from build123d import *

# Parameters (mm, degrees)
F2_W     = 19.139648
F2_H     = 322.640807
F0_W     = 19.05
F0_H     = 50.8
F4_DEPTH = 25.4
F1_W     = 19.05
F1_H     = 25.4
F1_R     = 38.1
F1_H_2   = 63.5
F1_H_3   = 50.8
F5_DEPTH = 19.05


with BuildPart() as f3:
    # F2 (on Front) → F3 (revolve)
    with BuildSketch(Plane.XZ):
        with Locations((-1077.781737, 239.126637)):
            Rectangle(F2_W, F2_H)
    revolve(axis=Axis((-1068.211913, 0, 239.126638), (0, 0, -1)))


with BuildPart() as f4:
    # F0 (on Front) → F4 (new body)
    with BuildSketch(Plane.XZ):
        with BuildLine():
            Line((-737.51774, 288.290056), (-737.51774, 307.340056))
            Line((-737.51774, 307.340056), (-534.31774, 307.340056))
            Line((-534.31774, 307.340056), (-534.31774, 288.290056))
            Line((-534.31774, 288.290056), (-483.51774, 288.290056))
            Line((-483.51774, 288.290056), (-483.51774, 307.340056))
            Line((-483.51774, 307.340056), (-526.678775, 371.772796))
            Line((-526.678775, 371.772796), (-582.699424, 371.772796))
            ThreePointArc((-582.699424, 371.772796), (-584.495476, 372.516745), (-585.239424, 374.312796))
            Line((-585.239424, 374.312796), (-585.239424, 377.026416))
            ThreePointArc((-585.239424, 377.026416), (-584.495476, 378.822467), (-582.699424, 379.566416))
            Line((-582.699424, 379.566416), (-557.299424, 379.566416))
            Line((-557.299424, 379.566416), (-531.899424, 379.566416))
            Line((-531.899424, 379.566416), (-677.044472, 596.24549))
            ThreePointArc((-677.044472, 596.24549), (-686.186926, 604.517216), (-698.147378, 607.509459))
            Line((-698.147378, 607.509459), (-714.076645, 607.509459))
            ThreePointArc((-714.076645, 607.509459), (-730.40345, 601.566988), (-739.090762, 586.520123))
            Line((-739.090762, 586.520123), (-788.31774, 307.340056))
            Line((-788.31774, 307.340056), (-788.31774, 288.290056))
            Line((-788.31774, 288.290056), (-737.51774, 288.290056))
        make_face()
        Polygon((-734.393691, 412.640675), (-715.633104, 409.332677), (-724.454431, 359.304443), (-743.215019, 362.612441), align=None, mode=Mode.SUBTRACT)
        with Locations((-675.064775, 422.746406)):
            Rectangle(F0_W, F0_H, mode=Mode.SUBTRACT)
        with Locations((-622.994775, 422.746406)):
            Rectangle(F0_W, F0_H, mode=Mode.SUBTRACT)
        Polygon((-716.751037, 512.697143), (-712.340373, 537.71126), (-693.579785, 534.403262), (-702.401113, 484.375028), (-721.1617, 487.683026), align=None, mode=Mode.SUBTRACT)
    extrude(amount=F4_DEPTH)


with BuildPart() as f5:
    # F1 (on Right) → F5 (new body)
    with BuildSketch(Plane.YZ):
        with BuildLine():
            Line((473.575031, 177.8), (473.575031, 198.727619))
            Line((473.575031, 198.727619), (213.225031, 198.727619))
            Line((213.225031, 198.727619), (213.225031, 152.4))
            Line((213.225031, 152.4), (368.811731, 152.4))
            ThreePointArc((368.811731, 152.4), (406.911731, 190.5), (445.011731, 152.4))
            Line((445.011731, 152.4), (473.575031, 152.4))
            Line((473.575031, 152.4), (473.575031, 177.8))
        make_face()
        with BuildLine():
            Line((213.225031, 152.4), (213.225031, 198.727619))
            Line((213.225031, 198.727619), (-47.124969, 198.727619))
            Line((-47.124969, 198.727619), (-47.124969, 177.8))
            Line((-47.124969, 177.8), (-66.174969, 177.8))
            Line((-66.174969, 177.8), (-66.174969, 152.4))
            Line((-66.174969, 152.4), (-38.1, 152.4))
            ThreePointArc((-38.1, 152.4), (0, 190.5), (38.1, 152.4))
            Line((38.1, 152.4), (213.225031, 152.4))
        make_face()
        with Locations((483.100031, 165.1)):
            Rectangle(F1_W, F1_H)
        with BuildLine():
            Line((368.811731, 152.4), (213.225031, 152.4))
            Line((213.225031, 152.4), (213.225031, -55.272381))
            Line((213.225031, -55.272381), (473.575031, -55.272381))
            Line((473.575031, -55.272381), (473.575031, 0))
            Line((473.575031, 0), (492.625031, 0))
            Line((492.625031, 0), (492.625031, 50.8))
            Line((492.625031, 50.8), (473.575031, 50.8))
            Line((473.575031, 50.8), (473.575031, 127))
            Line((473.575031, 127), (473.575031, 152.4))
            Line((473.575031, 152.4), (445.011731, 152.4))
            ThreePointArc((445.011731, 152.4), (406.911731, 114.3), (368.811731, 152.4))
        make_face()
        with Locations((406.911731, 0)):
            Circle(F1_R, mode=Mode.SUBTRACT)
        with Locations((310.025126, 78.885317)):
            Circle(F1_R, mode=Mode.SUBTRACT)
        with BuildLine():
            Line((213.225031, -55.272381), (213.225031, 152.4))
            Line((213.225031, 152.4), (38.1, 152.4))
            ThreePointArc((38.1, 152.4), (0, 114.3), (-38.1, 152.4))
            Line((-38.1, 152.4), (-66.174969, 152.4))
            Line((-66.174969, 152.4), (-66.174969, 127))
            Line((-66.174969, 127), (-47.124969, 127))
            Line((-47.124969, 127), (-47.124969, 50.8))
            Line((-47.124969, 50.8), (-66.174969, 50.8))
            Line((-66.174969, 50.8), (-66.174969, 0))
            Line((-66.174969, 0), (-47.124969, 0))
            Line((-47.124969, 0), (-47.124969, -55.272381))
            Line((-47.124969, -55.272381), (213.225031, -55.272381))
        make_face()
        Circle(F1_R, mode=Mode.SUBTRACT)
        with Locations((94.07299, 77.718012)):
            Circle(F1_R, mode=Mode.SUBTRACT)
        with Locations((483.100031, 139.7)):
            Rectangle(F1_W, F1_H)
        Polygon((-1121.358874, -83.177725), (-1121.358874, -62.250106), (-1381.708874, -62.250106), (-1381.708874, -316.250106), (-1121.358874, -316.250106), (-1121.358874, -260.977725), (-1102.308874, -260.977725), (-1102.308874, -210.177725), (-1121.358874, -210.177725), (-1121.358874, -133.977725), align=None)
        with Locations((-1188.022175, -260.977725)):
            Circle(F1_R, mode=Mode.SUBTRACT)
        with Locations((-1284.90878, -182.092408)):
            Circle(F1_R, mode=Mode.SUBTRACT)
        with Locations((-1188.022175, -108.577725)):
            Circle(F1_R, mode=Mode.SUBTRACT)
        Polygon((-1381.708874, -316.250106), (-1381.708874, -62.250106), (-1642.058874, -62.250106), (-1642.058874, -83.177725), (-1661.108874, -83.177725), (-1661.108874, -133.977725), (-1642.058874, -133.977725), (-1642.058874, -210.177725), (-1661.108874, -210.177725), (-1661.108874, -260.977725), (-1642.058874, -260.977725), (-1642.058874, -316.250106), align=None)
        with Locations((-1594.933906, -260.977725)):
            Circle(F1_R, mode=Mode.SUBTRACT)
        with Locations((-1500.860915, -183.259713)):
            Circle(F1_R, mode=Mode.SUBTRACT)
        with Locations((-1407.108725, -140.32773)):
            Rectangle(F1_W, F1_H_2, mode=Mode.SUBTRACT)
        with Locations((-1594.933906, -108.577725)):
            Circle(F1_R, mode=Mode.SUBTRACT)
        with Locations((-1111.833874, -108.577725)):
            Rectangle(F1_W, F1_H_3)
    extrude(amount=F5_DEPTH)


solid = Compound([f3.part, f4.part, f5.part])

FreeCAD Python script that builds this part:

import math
import FreeCAD as App
import Part
import Sketcher
Q = App.Units.Quantity


def add_polygon(sketch, points):
    """Adds a closed chain of lines whose ends are joined by coincident constraints."""
    first, n = sketch.GeometryCount, len(points)
    for a, b in zip(points, points[1:] + points[:1]):
        sketch.addGeometry(Part.LineSegment(App.Vector(*a, 0), App.Vector(*b, 0)), False)
    for i in range(n):
        sketch.addConstraint(Sketcher.Constraint("Coincident", first + i, 2, first + (i + 1) % n, 1))

doc = App.newDocument("Part")
body = doc.addObject("PartDesign::Body", "Body")

# Sketch on XZ plane
sketch1 = doc.addObject("Sketcher::SketchObject", "Sketch")
body.addObject(sketch1)
sketch1.AttachmentSupport = (doc.XZ_Plane, [""])
sketch1.MapMode = "FlatFace"
add_polygon(sketch1, [(-1087.351561, 400.447041), (-1087.351561, 77.806234), (-1068.211913, 77.806234), (-1068.211913, 400.447041)])  # lines 0-3
sketch1.addGeometry(Part.LineSegment(App.Vector(-1068.211913, 400.447041, 0), App.Vector(-1068.211913, 77.806234, 0)), True)  # axis
sketch1.addConstraint([
    Sketcher.Constraint("Vertical", 0),
    Sketcher.Constraint("Horizontal", 1),
    Sketcher.Constraint("Vertical", 2),
    Sketcher.Constraint("Horizontal", 3),
    Sketcher.Constraint("Vertical", 4),
    Sketcher.Constraint("Coincident", 4, 1, 2, 2),
    Sketcher.Constraint("Horizontal", 0, 2, 4, 2),
    Sketcher.Constraint("DistanceX", 1, 1, 1, 2, 19.139648),
    Sketcher.Constraint("DistanceY", 0, 2, 0, 1, 322.640807),
    Sketcher.Constraint("DistanceX", 0, 2, -1, 1, 1087.351561),
    Sketcher.Constraint("DistanceY", -1, 1, 2, 2, 400.447041),
])
revolution = doc.addObject("PartDesign::Revolution", "Revolution")
body.addObject(revolution)
revolution.Profile = sketch1
revolution.ReferenceAxis = (sketch1, ["Axis0"])
revolution.Angle = 360
body2 = doc.addObject("PartDesign::Body", "Body001")

# Sketch on XZ plane
sketch2 = doc.addObject("Sketcher::SketchObject", "Sketch001")
body2.addObject(sketch2)
sketch2.AttachmentSupport = (doc.getObject("XZ_Plane001"), [""])
sketch2.MapMode = "FlatFace"
sketch2.addGeometry(Part.LineSegment(App.Vector(-737.51774, 288.290056, 0), App.Vector(-737.51774, 307.340056, 0)), False)  # 0
sketch2.addGeometry(Part.LineSegment(App.Vector(-737.51774, 307.340056, 0), App.Vector(-534.31774, 307.340056, 0)), False)  # 1
sketch2.addGeometry(Part.LineSegment(App.Vector(-534.31774, 307.340056, 0), App.Vector(-534.31774, 288.290056, 0)), False)  # 2
sketch2.addGeometry(Part.LineSegment(App.Vector(-534.31774, 288.290056, 0), App.Vector(-483.51774, 288.290056, 0)), False)  # 3
sketch2.addGeometry(Part.LineSegment(App.Vector(-483.51774, 288.290056, 0), App.Vector(-483.51774, 307.340056, 0)), False)  # 4
sketch2.addGeometry(Part.LineSegment(App.Vector(-483.51774, 307.340056, 0), App.Vector(-526.678775, 371.772796, 0)), False)  # 5
sketch2.addGeometry(Part.LineSegment(App.Vector(-526.678775, 371.772796, 0), App.Vector(-582.699424, 371.772796, 0)), False)  # 6
sketch2.addGeometry(Part.ArcOfCircle(Part.Circle(App.Vector(-582.699425, 374.312795, 0), App.Vector(0, 0, 1), 2.539999), math.radians(179.999979), math.radians(270.000021)), False)  # 7
sketch2.addGeometry(Part.LineSegment(App.Vector(-585.239424, 374.312796, 0), App.Vector(-585.239424, 377.026416, 0)), False)  # 8
sketch2.addGeometry(Part.ArcOfCircle(Part.Circle(App.Vector(-582.699425, 377.026417, 0), App.Vector(0, 0, 1), 2.539999), math.radians(89.999979), math.radians(180.000021)), False)  # 9
sketch2.addGeometry(Part.LineSegment(App.Vector(-582.699424, 379.566416, 0), App.Vector(-531.899424, 379.566416, 0)), False)  # 10
sketch2.addGeometry(Part.LineSegment(App.Vector(-531.899424, 379.566416, 0), App.Vector(-677.044472, 596.24549, 0)), False)  # 11
sketch2.addGeometry(Part.ArcOfCircle(Part.Circle(App.Vector(-698.147379, 582.109456, 0), App.Vector(0, 0, 1), 25.400003), math.radians(33.816625), math.radians(89.999997)), False)  # 12
sketch2.addGeometry(Part.LineSegment(App.Vector(-698.147378, 607.509459, 0), App.Vector(-714.076645, 607.509459, 0)), False)  # 13
sketch2.addGeometry(Part.ArcOfCircle(Part.Circle(App.Vector(-714.076645, 582.109458, 0), App.Vector(0, 0, 1), 25.400001), math.radians(90.000001), math.radians(169.999998)), False)  # 14
sketch2.addGeometry(Part.LineSegment(App.Vector(-739.090762, 586.520123, 0), App.Vector(-788.31774, 307.340056, 0)), False)  # 15
sketch2.addGeometry(Part.LineSegment(App.Vector(-788.31774, 307.340056, 0), App.Vector(-788.31774, 288.290056, 0)), False)  # 16
sketch2.addGeometry(Part.LineSegment(App.Vector(-788.31774, 288.290056, 0), App.Vector(-737.51774, 288.290056, 0)), False)  # 17
add_polygon(sketch2, [(-743.215019, 362.612441), (-734.393691, 412.640675), (-715.633104, 409.332677), (-724.454431, 359.304443)])  # lines 18-21
add_polygon(sketch2, [(-665.539775, 397.346406), (-684.589775, 397.346406), (-684.589775, 448.146406), (-665.539775, 448.146406)])  # lines 22-25
add_polygon(sketch2, [(-613.469775, 397.346406), (-632.519775, 397.346406), (-632.519775, 448.146406), (-613.469775, 448.146406)])  # lines 26-29
add_polygon(sketch2, [(-721.1617, 487.683026), (-716.751037, 512.697143), (-712.340373, 537.71126), (-693.579785, 534.403262), (-702.401113, 484.375028)])  # lines 30-34
sketch2.addConstraint([
    Sketcher.Constraint("Coincident", 0, 2, 1, 1),
    Sketcher.Constraint("Coincident", 1, 2, 2, 1),
    Sketcher.Constraint("Coincident", 2, 2, 3, 1),
    Sketcher.Constraint("Coincident", 3, 2, 4, 1),
    Sketcher.Constraint("Coincident", 4, 2, 5, 1),
    Sketcher.Constraint("Coincident", 5, 2, 6, 1),
    Sketcher.Constraint("Tangent", 6, 2, 7, 2),
    Sketcher.Constraint("Tangent", 7, 1, 8, 1),
    Sketcher.Constraint("Tangent", 8, 2, 9, 2),
    Sketcher.Constraint("Tangent", 9, 1, 10, 1),
    Sketcher.Constraint("Coincident", 10, 2, 11, 1),
    Sketcher.Constraint("Tangent", 11, 2, 12, 1),
    Sketcher.Constraint("Tangent", 12, 2, 13, 1),
    Sketcher.Constraint("Tangent", 13, 2, 14, 1),
    Sketcher.Constraint("Tangent", 14, 2, 15, 1),
    Sketcher.Constraint("Coincident", 15, 2, 16, 1),
    Sketcher.Constraint("Coincident", 16, 2, 17, 1),
    Sketcher.Constraint("Coincident", 17, 2, 0, 1),
    Sketcher.Constraint("Vertical", 0),
    Sketcher.Constraint("Horizontal", 1),
    Sketcher.Constraint("Vertical", 2),
    Sketcher.Constraint("Horizontal", 3),
    Sketcher.Constraint("Vertical", 4),
    Sketcher.Constraint("Horizontal", 6),
    Sketcher.Constraint("Vertical", 8),
    Sketcher.Constraint("Horizontal", 10),
    Sketcher.Constraint("Horizontal", 13),
    Sketcher.Constraint("Vertical", 16),
    Sketcher.Constraint("Horizontal", 17),
    Sketcher.Constraint("Horizontal", 22),
    Sketcher.Constraint("Vertical", 23),
    Sketcher.Constraint("Horizontal", 24),
    Sketcher.Constraint("Vertical", 25),
    Sketcher.Constraint("Horizontal", 26),
    Sketcher.Constraint("Vertical", 27),
    Sketcher.Constraint("Horizontal", 28),
    Sketcher.Constraint("Vertical", 29),
    Sketcher.Constraint("Equal", 7, 9),
    Sketcher.Constraint("Parallel", 5, 11),
    Sketcher.Constraint("Parallel", 15, 18),
    Sketcher.Constraint("Perpendicular", 18, 19),
    Sketcher.Constraint("Perpendicular", 19, 20),
    Sketcher.Constraint("Perpendicular", 20, 21),
    Sketcher.Constraint("Perpendicular", 21, 30),
    Sketcher.Constraint("Parallel", 30, 31),
    Sketcher.Constraint("Perpendicular", 31, 32),
    Sketcher.Constraint("Perpendicular", 32, 33),
    Sketcher.Constraint("Perpendicular", 33, 34),
    Sketcher.Constraint("Horizontal", 1, 2, 4, 2),
    Sketcher.Constraint("Horizontal", 4, 2, 15, 2),
    Sketcher.Constraint("Horizontal", 3, 2, 16, 2),
    Sketcher.Constraint("Horizontal", 25, 2, 26, 2),
    Sketcher.Constraint("Horizontal", 24, 2, 27, 2),
    Sketcher.Constraint("Equal", 3, 10),
    Sketcher.Constraint("Equal", 10, 17),
    Sketcher.Constraint("Equal", 24, 26),
    Sketcher.Constraint("Equal", 28, 0),
    Sketcher.Constraint("Equal", 17, 23),
    Sketcher.Constraint("Equal", 30, 31),
    Sketcher.Constraint("Equal", 21, 32),
    Sketcher.Constraint("Equal", 20, 33),
    Sketcher.Constraint("Radius", 12, Q("1.0000001 in")),
    Sketcher.Constraint("Radius", 14, Q("1 in")),
    Sketcher.Constraint("Radius", 7, Q("0.1 in")),
    Sketcher.Constraint("DistanceX", 1, 1, 1, 2, Q("8 in")),
    Sketcher.Constraint("DistanceX", 3, 1, 3, 2, Q("2 in")),
    Sketcher.Constraint("Distance", 18, Q("2 in")),
    Sketcher.Constraint("Angle", 15, Q("-100 deg")),
    Sketcher.Constraint("DistanceX", 22, 2, 22, 1, Q("0.75 in")),
    Sketcher.Constraint("DistanceX", 25, 2, 26, 2, Q("1.3 in")),
    Sketcher.Constraint("Distance", 19, Q("0.75 in")),
    Sketcher.Constraint("DistanceX", 0, 2, 19, 2, Q("0.8615998 in")),
    Sketcher.Constraint("DistanceY", 8, 2, 19, 2, Q("1.2719 in")),
    Sketcher.Constraint("DistanceX", 6, 2, 6, 1, 56.020649),
    Sketcher.Constraint("DistanceY", 8, 1, 8, 2, 2.71362),
    Sketcher.Constraint("DistanceX", 34, 2, -1, 1, 721.1617),
    Sketcher.Constraint("DistanceY", 0, 2, 12, 3, 274.7694),
    Sketcher.Constraint("DistanceY", 31, 2, 14, 3, 44.398198),
    Sketcher.Constraint("DistanceX", 31, 2, 11, 2, 35.295901),
    Sketcher.Constraint("Distance", 11, 260.80051),
    Sketcher.Constraint("DistanceX", 13, 2, 13, 1, 15.929267),
    Sketcher.Constraint("DistanceY", -1, 1, 14, 3, 582.109458),
    Sketcher.Constraint("DistanceX", 19, 2, 22, 2, 31.043329),
    Sketcher.Constraint("DistanceY", 22, 2, 19, 2, 11.986271),
])
pad1 = doc.addObject("PartDesign::Pad", "Pad")
body2.addObject(pad1)
pad1.Profile = sketch2
pad1.Length = Q("1 in")
body3 = doc.addObject("PartDesign::Body", "Body002")
body3.AllowCompound = True

# Sketch on YZ plane
sketch3 = doc.addObject("Sketcher::SketchObject", "Sketch002")
body3.addObject(sketch3)
sketch3.AttachmentSupport = (doc.getObject("YZ_Plane002"), [""])
sketch3.MapMode = "FlatFace"
add_polygon(sketch3, [(473.575031, 198.727619), (-47.124969, 198.727619), (-47.124969, 177.8), (-66.174969, 177.8), (-66.174969, 127), (-47.124969, 127), (-47.124969, 50.8), (-66.174969, 50.8), (-66.174969, 0), (-47.124969, 0), (-47.124969, -55.272381), (473.575031, -55.272381), (473.575031, 0), (492.625031, 0), (492.625031, 50.8), (473.575031, 50.8), (473.575031, 127), (492.625031, 127), (492.625031, 177.8), (473.575031, 177.8)])  # lines 0-19
sketch3.addGeometry(Part.Circle(App.Vector(0, 0, 0), App.Vector(0, 0, 1), 38.1), False)  # 20
sketch3.addGeometry(Part.Circle(App.Vector(406.911731, 0, 0), App.Vector(0, 0, 1), 38.1), False)  # 21
sketch3.addGeometry(Part.Circle(App.Vector(94.07299, 77.718012, 0), App.Vector(0, 0, 1), 38.1), False)  # 22
sketch3.addGeometry(Part.Circle(App.Vector(0, 152.4, 0), App.Vector(0, 0, 1), 38.1), False)  # 23
sketch3.addGeometry(Part.Circle(App.Vector(310.025126, 78.885317, 0), App.Vector(0, 0, 1), 38.1), False)  # 24
sketch3.addGeometry(Part.Circle(App.Vector(406.911731, 152.4, 0), App.Vector(0, 0, 1), 38.1), False)  # 25
add_polygon(sketch3, [(-1121.358874, -62.250106), (-1642.058874, -62.250106), (-1642.058874, -83.177725), (-1661.108874, -83.177725), (-1661.108874, -133.977725), (-1642.058874, -133.977725), (-1642.058874, -210.177725), (-1661.108874, -210.177725), (-1661.108874, -260.977725), (-1642.058874, -260.977725), (-1642.058874, -316.250106), (-1121.358874, -316.250106), (-1121.358874, -260.977725), (-1102.308874, -260.977725), (-1102.308874, -210.177725), (-1121.358874, -210.177725), (-1121.358874, -133.977725), (-1102.308874, -133.977725), (-1102.308874, -83.177725), (-1121.358874, -83.177725)])  # lines 26-45
sketch3.addGeometry(Part.Circle(App.Vector(-1594.933906, -260.977725, 0), App.Vector(0, 0, 1), 38.1), False)  # 46
sketch3.addGeometry(Part.Circle(App.Vector(-1188.022175, -260.977725, 0), App.Vector(0, 0, 1), 38.1), False)  # 47
sketch3.addGeometry(Part.Circle(App.Vector(-1500.860915, -183.259713, 0), App.Vector(0, 0, 1), 38.1), False)  # 48
add_polygon(sketch3, [(-1397.583725, -172.07773), (-1416.633725, -172.07773), (-1416.633725, -108.57773), (-1397.583725, -108.57773)])  # lines 49-52
sketch3.addGeometry(Part.Circle(App.Vector(-1594.933906, -108.577725, 0), App.Vector(0, 0, 1), 38.1), False)  # 53
sketch3.addGeometry(Part.Circle(App.Vector(-1284.90878, -182.092408, 0), App.Vector(0, 0, 1), 38.1), False)  # 54
sketch3.addGeometry(Part.Circle(App.Vector(-1188.022175, -108.577725, 0), App.Vector(0, 0, 1), 38.1), False)  # 55
sketch3.addConstraint([
    Sketcher.Constraint("Horizontal", 0),
    Sketcher.Constraint("Vertical", 1),
    Sketcher.Constraint("Horizontal", 2),
    Sketcher.Constraint("Vertical", 3),
    Sketcher.Constraint("Horizontal", 4),
    Sketcher.Constraint("Vertical", 5),
    Sketcher.Constraint("Horizontal", 6),
    Sketcher.Constraint("Vertical", 7),
    Sketcher.Constraint("Horizontal", 8),
    Sketcher.Constraint("Vertical", 9),
    Sketcher.Constraint("Horizontal", 10),
    Sketcher.Constraint("Vertical", 11),
    Sketcher.Constraint("Horizontal", 12),
    Sketcher.Constraint("Vertical", 13),
    Sketcher.Constraint("Horizontal", 14),
    Sketcher.Constraint("Vertical", 15),
    Sketcher.Constraint("Horizontal", 16),
    Sketcher.Constraint("Vertical", 17),
    Sketcher.Constraint("Horizontal", 18),
    Sketcher.Constraint("Vertical", 19),
    Sketcher.Constraint("Horizontal", 26),
    Sketcher.Constraint("Vertical", 27),
    Sketcher.Constraint("Horizontal", 28),
    Sketcher.Constraint("Vertical", 29),
    Sketcher.Constraint("Horizontal", 30),
    Sketcher.Constraint("Vertical", 31),
    Sketcher.Constraint("Horizontal", 32),
    Sketcher.Constraint("Vertical", 33),
    Sketcher.Constraint("Horizontal", 34),
    Sketcher.Constraint("Vertical", 35),
    Sketcher.Constraint("Horizontal", 36),
    Sketcher.Constraint("Vertical", 37),
    Sketcher.Constraint("Horizontal", 38),
    Sketcher.Constraint("Vertical", 39),
    Sketcher.Constraint("Horizontal", 40),
    Sketcher.Constraint("Vertical", 41),
    Sketcher.Constraint("Horizontal", 42),
    Sketcher.Constraint("Vertical", 43),
    Sketcher.Constraint("Horizontal", 44),
    Sketcher.Constraint("Vertical", 45),
    Sketcher.Constraint("Horizontal", 49),
    Sketcher.Constraint("Vertical", 50),
    Sketcher.Constraint("Horizontal", 51),
    Sketcher.Constraint("Vertical", 52),
    Sketcher.Constraint("Coincident", 20, 3, -1, 1),
    Sketcher.Constraint("Equal", 20, 21),
    Sketcher.Constraint("Equal", 21, 22),
    Sketcher.Constraint("Equal", 22, 23),
    Sketcher.Constraint("Equal", 23, 24),
    Sketcher.Constraint("Equal", 24, 25),
    Sketcher.Constraint("Equal", 25, 46),
    Sketcher.Constraint("Equal", 46, 47),
    Sketcher.Constraint("Equal", 47, 48),
    Sketcher.Constraint("Equal", 48, 53),
    Sketcher.Constraint("Equal", 53, 54),
    Sketcher.Constraint("Equal", 54, 55),
    Sketcher.Constraint("PointOnObject", 21, 3, -1),
    Sketcher.Constraint("PointOnObject", 23, 3, -2),
    Sketcher.Constraint("PointOnObject", 7, 2, -1),
    Sketcher.Constraint("PointOnObject", 11, 2, -1),
    Sketcher.Constraint("Horizontal", 23, 3, 25, 3),
    Sketcher.Constraint("Horizontal", 46, 3, 47, 3),
    Sketcher.Constraint("Horizontal", 53, 3, 55, 3),
    Sketcher.Constraint("Horizontal", 6, 2, 13, 2),
    Sketcher.Constraint("Horizontal", 4, 2, 15, 2),
    Sketcher.Constraint("Horizontal", 2, 2, 17, 2),
    Sketcher.Constraint("Horizontal", 47, 3, 33, 2),
    Sketcher.Constraint("Horizontal", 34, 2, 37, 2),
    Sketcher.Constraint("Horizontal", 32, 2, 39, 2),
    Sketcher.Constraint("Horizontal", 30, 2, 41, 2),
    Sketcher.Constraint("Horizontal", 28, 2, 43, 2),
    Sketcher.Constraint("Vertical", 21, 3, 25, 3),
    Sketcher.Constraint("Vertical", 46, 3, 53, 3),
    Sketcher.Constraint("Vertical", 47, 3, 55, 3),
    Sketcher.Constraint("Vertical", 1, 2, 4, 2),
    Sketcher.Constraint("Vertical", 3, 2, 6, 2),
    Sketcher.Constraint("Vertical", 5, 2, 8, 2),
    Sketcher.Constraint("Vertical", 11, 2, 14, 2),
    Sketcher.Constraint("Vertical", 13, 2, 16, 2),
    Sketcher.Constraint("Vertical", 15, 2, 18, 2),
    Sketcher.Constraint("Vertical", 27, 2, 30, 2),
    Sketcher.Constraint("Vertical", 29, 2, 32, 2),
    Sketcher.Constraint("Vertical", 31, 2, 34, 2),
    Sketcher.Constraint("Vertical", 37, 2, 40, 2),
    Sketcher.Constraint("Vertical", 39, 2, 42, 2),
    Sketcher.Constraint("Vertical", 41, 2, 44, 2),
    Sketcher.Constraint("Equal", 8, 12),
    Sketcher.Constraint("Equal", 10, 26),
    Sketcher.Constraint("Equal", 18, 28),
    Sketcher.Constraint("Equal", 34, 38),
    Sketcher.Constraint("Equal", 44, 49),
    Sketcher.Constraint("Equal", 3, 7),
    Sketcher.Constraint("Equal", 19, 27),
    Sketcher.Constraint("Equal", 17, 29),
    Sketcher.Constraint("Equal", 15, 31),
    Sketcher.Constraint("Equal", 29, 33),
    Sketcher.Constraint("Equal", 11, 35),
    Sketcher.Constraint("Diameter", 20, Q("3 in")),
    Sketcher.Constraint("DistanceY", 3, 2, 3, 1, Q("2 in")),
    Sketcher.Constraint("DistanceY", 5, 2, 5, 1, Q("3 in")),
    Sketcher.Constraint("DistanceX", 0, 2, 0, 1, Q("20.5 in")),
    Sketcher.Constraint("DistanceY", 50, 1, 50, 2, Q("2.5 in")),
    Sketcher.Constraint("DistanceY", -1, 1, 23, 3, Q("6 in")),
    Sketcher.Constraint("DistanceY", 46, 3, 53, 3, Q("6 in")),
    Sketcher.Constraint("DistanceY", 30, 2, 50, 2, Q("0.9999998 in")),
    Sketcher.Constraint("DistanceX", 2, 2, 2, 1, Q("0.75 in")),
    Sketcher.Constraint("DistanceY", 1, 2, 1, 1, 20.927619),
    Sketcher.Constraint("DistanceY", 9, 2, 9, 1, 55.272381),
    Sketcher.Constraint("DistanceX", 47, 3, 24, 3, 1498.047301),
    Sketcher.Constraint("DistanceX", 0, 2, 25, 3, 454.0367),
    Sketcher.Constraint("DistanceY", 10, 2, 24, 3, 134.157698),
    Sketcher.Constraint("DistanceX", 26, 2, 55, 3, 454.036699),
    Sketcher.Constraint("DistanceY", 36, 2, 54, 3, 134.157698),
    Sketcher.Constraint("DistanceX", -1, 1, 21, 3, 406.911731),
    Sketcher.Constraint("DistanceX", -1, 1, 22, 3, 94.07299),
    Sketcher.Constraint("DistanceY", -1, 1, 22, 3, 77.718012),
    Sketcher.Constraint("DistanceX", 54, 3, -1, 1, 1284.90878),
    Sketcher.Constraint("DistanceY", 54, 3, -1, 1, 182.092408),
    Sketcher.Constraint("DistanceX", 46, 3, 24, 3, 1904.959032),
    Sketcher.Constraint("DistanceX", 46, 3, 48, 3, 94.072991),
    Sketcher.Constraint("DistanceY", 48, 3, 53, 3, 74.681988),
    Sketcher.Constraint("DistanceX", 48, 3, 49, 2, 84.22719),
    Sketcher.Constraint("DistanceX", -1, 1, 24, 3, 310.025126),
])
pad2 = doc.addObject("PartDesign::Pad", "Pad001")
body3.addObject(pad2)
pad2.Profile = sketch3
pad2.Length = Q("0.75 in")

doc.recompute()
